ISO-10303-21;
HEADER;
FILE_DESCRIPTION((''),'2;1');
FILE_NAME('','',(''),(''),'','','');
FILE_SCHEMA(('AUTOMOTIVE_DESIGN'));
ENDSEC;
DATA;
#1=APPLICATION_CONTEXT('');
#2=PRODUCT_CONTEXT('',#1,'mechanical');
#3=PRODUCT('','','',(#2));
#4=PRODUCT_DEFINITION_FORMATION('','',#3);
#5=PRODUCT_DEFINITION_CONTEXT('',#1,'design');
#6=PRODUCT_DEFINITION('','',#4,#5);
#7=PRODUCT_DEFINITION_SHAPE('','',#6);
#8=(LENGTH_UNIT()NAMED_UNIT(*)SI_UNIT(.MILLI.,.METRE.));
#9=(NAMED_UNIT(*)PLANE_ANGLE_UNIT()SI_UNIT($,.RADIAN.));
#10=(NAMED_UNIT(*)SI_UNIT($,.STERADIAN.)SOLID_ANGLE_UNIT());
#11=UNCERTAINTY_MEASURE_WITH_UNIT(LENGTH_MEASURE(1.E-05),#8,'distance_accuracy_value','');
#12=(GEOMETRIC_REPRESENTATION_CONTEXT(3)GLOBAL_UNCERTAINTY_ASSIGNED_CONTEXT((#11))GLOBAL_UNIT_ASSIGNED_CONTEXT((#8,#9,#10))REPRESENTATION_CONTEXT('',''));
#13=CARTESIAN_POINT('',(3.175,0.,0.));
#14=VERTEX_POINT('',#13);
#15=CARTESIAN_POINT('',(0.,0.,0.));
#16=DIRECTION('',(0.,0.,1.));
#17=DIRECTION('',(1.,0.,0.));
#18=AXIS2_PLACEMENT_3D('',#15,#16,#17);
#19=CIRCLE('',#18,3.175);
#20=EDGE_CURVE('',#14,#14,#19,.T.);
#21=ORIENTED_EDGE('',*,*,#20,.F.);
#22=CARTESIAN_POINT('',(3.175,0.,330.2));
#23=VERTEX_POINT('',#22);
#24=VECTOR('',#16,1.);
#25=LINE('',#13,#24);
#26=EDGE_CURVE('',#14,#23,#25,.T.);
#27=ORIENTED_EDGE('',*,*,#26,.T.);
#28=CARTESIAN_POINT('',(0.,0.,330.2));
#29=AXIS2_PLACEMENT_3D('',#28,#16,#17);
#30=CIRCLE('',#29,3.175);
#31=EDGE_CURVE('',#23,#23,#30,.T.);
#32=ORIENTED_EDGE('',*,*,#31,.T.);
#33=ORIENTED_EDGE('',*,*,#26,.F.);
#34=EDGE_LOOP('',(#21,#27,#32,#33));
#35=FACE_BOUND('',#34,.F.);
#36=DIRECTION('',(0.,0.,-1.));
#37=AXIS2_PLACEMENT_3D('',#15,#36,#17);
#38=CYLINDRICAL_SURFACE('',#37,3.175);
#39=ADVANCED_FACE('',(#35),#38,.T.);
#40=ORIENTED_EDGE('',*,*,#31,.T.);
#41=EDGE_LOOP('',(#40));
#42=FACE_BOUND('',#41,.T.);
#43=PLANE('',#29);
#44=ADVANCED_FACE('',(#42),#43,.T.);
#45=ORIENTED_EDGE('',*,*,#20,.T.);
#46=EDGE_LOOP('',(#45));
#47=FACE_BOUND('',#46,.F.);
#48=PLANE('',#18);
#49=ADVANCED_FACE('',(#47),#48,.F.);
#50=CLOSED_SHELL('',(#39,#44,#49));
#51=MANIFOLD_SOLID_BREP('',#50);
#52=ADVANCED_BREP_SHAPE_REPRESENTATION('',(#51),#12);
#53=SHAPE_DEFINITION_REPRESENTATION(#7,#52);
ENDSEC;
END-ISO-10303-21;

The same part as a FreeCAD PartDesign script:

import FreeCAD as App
import Part
import Sketcher
Q = App.Units.Quantity

doc = App.newDocument("Part")
body = doc.addObject("PartDesign::Body", "Body")

# Sketch on XY plane
sketch1 = doc.addObject("Sketcher::SketchObject", "Sketch")
body.addObject(sketch1)
sketch1.AttachmentSupport = (doc.XY_Plane, [""])
sketch1.MapMode = "FlatFace"
sketch1.addGeometry(Part.Circle(App.Vector(0, 0, 0), App.Vector(0, 0, 1), 3.2), False)
sketch1.addConstraint(Sketcher.Constraint("Coincident", 0, 3, -1, 1))
sketch1.addConstraint(Sketcher.Constraint("Diameter", 0, Q("0.25 in")))
pad1 = doc.addObject("PartDesign::Pad", "Pad")
body.addObject(pad1)
pad1.Profile = sketch1
pad1.Length = Q("13 in")

doc.recompute()
